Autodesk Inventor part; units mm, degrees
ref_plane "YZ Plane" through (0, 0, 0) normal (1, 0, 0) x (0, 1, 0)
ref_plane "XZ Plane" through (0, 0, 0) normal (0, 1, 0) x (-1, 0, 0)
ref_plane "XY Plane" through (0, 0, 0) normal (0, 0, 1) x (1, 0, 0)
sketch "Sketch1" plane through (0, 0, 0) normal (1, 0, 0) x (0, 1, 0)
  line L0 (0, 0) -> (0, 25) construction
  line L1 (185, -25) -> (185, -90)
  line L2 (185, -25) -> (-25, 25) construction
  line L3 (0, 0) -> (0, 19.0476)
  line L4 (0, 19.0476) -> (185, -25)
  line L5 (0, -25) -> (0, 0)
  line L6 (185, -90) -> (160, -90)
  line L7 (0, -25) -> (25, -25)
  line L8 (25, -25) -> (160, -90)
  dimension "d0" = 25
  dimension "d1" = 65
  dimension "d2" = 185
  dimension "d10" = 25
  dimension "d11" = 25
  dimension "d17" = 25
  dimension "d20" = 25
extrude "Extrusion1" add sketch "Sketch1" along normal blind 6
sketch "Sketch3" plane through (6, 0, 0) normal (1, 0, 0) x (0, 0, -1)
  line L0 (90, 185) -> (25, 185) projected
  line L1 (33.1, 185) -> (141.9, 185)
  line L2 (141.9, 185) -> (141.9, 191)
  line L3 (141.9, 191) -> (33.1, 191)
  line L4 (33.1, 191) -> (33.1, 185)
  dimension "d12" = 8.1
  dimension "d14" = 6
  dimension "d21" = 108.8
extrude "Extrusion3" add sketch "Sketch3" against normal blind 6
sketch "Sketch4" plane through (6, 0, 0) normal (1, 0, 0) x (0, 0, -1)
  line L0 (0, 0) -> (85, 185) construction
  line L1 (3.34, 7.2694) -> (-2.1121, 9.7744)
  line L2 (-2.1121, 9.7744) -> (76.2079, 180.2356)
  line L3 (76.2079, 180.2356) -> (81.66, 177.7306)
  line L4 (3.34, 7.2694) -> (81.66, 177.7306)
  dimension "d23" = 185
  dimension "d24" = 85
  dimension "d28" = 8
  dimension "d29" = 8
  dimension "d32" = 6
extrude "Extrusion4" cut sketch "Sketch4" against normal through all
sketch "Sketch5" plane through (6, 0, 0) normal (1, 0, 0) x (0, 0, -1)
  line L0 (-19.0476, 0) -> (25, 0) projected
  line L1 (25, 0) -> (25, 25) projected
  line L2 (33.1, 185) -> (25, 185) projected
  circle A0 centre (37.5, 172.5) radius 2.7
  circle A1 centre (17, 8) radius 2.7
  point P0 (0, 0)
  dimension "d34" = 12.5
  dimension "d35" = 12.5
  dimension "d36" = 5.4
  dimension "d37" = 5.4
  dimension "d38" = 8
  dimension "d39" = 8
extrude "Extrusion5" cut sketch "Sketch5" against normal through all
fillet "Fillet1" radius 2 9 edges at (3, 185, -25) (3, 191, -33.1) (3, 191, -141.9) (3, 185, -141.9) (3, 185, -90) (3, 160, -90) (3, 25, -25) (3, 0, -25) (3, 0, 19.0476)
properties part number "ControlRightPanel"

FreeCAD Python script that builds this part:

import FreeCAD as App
import Part
import Sketcher
Q = App.Units.Quantity


def edges_at(feature, points):
    """Names of the edges that pass closest to the given points."""
    edges = feature.Shape.Edges
    near = lambda p: min(range(len(edges)), key=lambda i: edges[i].distToShape(Part.Vertex(*p))[0])
    return sorted({f"Edge{near(p) + 1}" for p in points})


def add_polygon(sketch, points):
    """Adds a closed chain of lines whose ends are joined by coincident constraints."""
    first, n = sketch.GeometryCount, len(points)
    for a, b in zip(points, points[1:] + points[:1]):
        sketch.addGeometry(Part.LineSegment(App.Vector(*a, 0), App.Vector(*b, 0)), False)
    for i in range(n):
        sketch.addConstraint(Sketcher.Constraint("Coincident", first + i, 2, first + (i + 1) % n, 1))

doc = App.newDocument("Part")
body = doc.addObject("PartDesign::Body", "Body")

# Sketch on YZ plane
sketch1 = body.newObject("Sketcher::SketchObject", "Sketch")
sketch1.AttachmentSupport = (doc.getObject("YZ_Plane"), [""])
sketch1.MapMode = "FlatFace"
add_polygon(sketch1, [(185, -90), (185, -25), (0, 19.0476), (0, -25), (25, -25), (160, -90)])  # lines 0-5
sketch1.addConstraint(Sketcher.Constraint("Vertical", 0))
sketch1.addConstraint(Sketcher.Constraint("Vertical", 2))
sketch1.addConstraint(Sketcher.Constraint("Horizontal", 3))
sketch1.addConstraint(Sketcher.Constraint("Horizontal", 5))
sketch1.addConstraint(Sketcher.Constraint("PointOnObject", 1, 2, -2))
sketch1.addConstraint(Sketcher.Constraint("Horizontal", 0, 2, 2, 2))
sketch1.addConstraint(Sketcher.Constraint("Equal", 3, 5))
sketch1.addConstraint(Sketcher.Constraint("DistanceX", 3, 1, 3, 2, Q("25 mm")))
sketch1.addConstraint(Sketcher.Constraint("DistanceY", 0, 1, 0, 2, Q("65 mm")))
sketch1.addConstraint(Sketcher.Constraint("DistanceX", -1, 1, 0, 2, Q("185 mm")))
sketch1.addConstraint(Sketcher.Constraint("DistanceY", 0, 2, -1, 1, Q("25 mm")))
sketch1.addConstraint(Sketcher.Constraint("DistanceY", 2, 2, 2, 1, Q("44.0476 mm")))
pad1 = body.newObject("PartDesign::Pad", "Pad")
pad1.Profile = sketch1
pad1.Length = 6

# Sketch on YZ plane
sketch2 = body.newObject("Sketcher::SketchObject", "Sketch001")
sketch2.AttachmentSupport = (doc.getObject("YZ_Plane"), [""])
sketch2.MapMode = "FlatFace"
sketch2.AttachmentOffset = App.Placement(App.Vector(0, 0, 6), App.Rotation())
add_polygon(sketch2, [(185, -33.1), (185, -141.9), (191, -141.9), (191, -33.1)])  # lines 0-3
sketch2.addConstraint(Sketcher.Constraint("Vertical", 0))
sketch2.addConstraint(Sketcher.Constraint("Horizontal", 1))
sketch2.addConstraint(Sketcher.Constraint("Vertical", 2))
sketch2.addConstraint(Sketcher.Constraint("Horizontal", 3))
sketch2.addConstraint(Sketcher.Constraint("DistanceX", 1, 1, 1, 2, Q("6 mm")))
sketch2.addConstraint(Sketcher.Constraint("DistanceY", 0, 2, 0, 1, Q("108.8 mm")))
sketch2.addConstraint(Sketcher.Constraint("DistanceX", -1, 1, 0, 2, Q("185 mm")))
sketch2.addConstraint(Sketcher.Constraint("DistanceY", 0, 2, -1, 1, Q("141.9 mm")))
pad2 = body.newObject("PartDesign::Pad", "Pad001")
pad2.Profile = sketch2
pad2.Length = 6
pad2.Reversed = True

# Sketch on YZ plane
sketch3 = body.newObject("Sketcher::SketchObject", "Sketch002")
sketch3.AttachmentSupport = (doc.getObject("YZ_Plane"), [""])
sketch3.MapMode = "FlatFace"
sketch3.AttachmentOffset = App.Placement(App.Vector(0, 0, 6), App.Rotation())
add_polygon(sketch3, [(9.7744, 2.1121), (7.2694, -3.34), (177.7306, -81.66), (180.2356, -76.2079)])  # lines 0-3
sketch3.addConstraint(Sketcher.Constraint("Distance", 0, Q("6 mm")))
sketch3.addConstraint(Sketcher.Constraint("Distance", 2, Q("6 mm")))
sketch3.addConstraint(Sketcher.Constraint("DistanceY", 0, 2, -1, 1, Q("3.34 mm")))
sketch3.addConstraint(Sketcher.Constraint("DistanceY", 1, 2, -1, 1, Q("81.66 mm")))
sketch3.addConstraint(Sketcher.Constraint("DistanceY", 2, 2, 3, 2, Q("78.32 mm")))
sketch3.addConstraint(Sketcher.Constraint("DistanceY", 2, 2, -1, 1, Q("76.208 mm")))
sketch3.addConstraint(Sketcher.Constraint("Distance", 1, Q("187.5928 mm")))
sketch3.addConstraint(Sketcher.Constraint("DistanceX", -1, 1, 0, 2, Q("7.2694 mm")))
pocket1 = body.newObject("PartDesign::Pocket", "Pocket")
pocket1.Profile = sketch3
pocket1.Type = "ThroughAll"

# Sketch on YZ plane
sketch4 = body.newObject("Sketcher::SketchObject", "Sketch003")
sketch4.AttachmentSupport = (doc.getObject("YZ_Plane"), [""])
sketch4.MapMode = "FlatFace"
sketch4.AttachmentOffset = App.Placement(App.Vector(0, 0, 6), App.Rotation())
sketch4.addGeometry(Part.Circle(App.Vector(172.5, -37.5, 0), App.Vector(0, 0, 1), 2.7), False)
sketch4.addGeometry(Part.Circle(App.Vector(8, -17, 0), App.Vector(0, 0, 1), 2.7), False)
sketch4.addConstraint(Sketcher.Constraint("Equal", 0, 1))
sketch4.addConstraint(Sketcher.Constraint("Diameter", 0, Q("5.4 mm")))
sketch4.addConstraint(Sketcher.Constraint("DistanceX", -1, 1, 1, 3, Q("8 mm")))
sketch4.addConstraint(Sketcher.Constraint("DistanceY", 1, 3, -1, 1, Q("17 mm")))
sketch4.addConstraint(Sketcher.Constraint("DistanceX", -1, 1, 0, 3, Q("172.5 mm")))
sketch4.addConstraint(Sketcher.Constraint("DistanceY", 0, 3, -1, 1, Q("37.5 mm")))
pocket2 = body.newObject("PartDesign::Pocket", "Pocket001")
pocket2.Profile = sketch4
pocket2.Type = "ThroughAll"
doc.recompute()

fillet = body.newObject("PartDesign::Fillet", "Fillet")
fillet.Base = (pocket2, edges_at(pocket2, [
    (3, 185, -25),
    (3, 191, -33.1),
    (3, 191, -141.9),
    (3, 185, -141.9),
    (3, 185, -90),
    (3, 160, -90),
    (3, 25, -25),
    (3, 0, -25),
    (3, 0, 19.048),
]))
fillet.Radius = 2

doc.recompute()
